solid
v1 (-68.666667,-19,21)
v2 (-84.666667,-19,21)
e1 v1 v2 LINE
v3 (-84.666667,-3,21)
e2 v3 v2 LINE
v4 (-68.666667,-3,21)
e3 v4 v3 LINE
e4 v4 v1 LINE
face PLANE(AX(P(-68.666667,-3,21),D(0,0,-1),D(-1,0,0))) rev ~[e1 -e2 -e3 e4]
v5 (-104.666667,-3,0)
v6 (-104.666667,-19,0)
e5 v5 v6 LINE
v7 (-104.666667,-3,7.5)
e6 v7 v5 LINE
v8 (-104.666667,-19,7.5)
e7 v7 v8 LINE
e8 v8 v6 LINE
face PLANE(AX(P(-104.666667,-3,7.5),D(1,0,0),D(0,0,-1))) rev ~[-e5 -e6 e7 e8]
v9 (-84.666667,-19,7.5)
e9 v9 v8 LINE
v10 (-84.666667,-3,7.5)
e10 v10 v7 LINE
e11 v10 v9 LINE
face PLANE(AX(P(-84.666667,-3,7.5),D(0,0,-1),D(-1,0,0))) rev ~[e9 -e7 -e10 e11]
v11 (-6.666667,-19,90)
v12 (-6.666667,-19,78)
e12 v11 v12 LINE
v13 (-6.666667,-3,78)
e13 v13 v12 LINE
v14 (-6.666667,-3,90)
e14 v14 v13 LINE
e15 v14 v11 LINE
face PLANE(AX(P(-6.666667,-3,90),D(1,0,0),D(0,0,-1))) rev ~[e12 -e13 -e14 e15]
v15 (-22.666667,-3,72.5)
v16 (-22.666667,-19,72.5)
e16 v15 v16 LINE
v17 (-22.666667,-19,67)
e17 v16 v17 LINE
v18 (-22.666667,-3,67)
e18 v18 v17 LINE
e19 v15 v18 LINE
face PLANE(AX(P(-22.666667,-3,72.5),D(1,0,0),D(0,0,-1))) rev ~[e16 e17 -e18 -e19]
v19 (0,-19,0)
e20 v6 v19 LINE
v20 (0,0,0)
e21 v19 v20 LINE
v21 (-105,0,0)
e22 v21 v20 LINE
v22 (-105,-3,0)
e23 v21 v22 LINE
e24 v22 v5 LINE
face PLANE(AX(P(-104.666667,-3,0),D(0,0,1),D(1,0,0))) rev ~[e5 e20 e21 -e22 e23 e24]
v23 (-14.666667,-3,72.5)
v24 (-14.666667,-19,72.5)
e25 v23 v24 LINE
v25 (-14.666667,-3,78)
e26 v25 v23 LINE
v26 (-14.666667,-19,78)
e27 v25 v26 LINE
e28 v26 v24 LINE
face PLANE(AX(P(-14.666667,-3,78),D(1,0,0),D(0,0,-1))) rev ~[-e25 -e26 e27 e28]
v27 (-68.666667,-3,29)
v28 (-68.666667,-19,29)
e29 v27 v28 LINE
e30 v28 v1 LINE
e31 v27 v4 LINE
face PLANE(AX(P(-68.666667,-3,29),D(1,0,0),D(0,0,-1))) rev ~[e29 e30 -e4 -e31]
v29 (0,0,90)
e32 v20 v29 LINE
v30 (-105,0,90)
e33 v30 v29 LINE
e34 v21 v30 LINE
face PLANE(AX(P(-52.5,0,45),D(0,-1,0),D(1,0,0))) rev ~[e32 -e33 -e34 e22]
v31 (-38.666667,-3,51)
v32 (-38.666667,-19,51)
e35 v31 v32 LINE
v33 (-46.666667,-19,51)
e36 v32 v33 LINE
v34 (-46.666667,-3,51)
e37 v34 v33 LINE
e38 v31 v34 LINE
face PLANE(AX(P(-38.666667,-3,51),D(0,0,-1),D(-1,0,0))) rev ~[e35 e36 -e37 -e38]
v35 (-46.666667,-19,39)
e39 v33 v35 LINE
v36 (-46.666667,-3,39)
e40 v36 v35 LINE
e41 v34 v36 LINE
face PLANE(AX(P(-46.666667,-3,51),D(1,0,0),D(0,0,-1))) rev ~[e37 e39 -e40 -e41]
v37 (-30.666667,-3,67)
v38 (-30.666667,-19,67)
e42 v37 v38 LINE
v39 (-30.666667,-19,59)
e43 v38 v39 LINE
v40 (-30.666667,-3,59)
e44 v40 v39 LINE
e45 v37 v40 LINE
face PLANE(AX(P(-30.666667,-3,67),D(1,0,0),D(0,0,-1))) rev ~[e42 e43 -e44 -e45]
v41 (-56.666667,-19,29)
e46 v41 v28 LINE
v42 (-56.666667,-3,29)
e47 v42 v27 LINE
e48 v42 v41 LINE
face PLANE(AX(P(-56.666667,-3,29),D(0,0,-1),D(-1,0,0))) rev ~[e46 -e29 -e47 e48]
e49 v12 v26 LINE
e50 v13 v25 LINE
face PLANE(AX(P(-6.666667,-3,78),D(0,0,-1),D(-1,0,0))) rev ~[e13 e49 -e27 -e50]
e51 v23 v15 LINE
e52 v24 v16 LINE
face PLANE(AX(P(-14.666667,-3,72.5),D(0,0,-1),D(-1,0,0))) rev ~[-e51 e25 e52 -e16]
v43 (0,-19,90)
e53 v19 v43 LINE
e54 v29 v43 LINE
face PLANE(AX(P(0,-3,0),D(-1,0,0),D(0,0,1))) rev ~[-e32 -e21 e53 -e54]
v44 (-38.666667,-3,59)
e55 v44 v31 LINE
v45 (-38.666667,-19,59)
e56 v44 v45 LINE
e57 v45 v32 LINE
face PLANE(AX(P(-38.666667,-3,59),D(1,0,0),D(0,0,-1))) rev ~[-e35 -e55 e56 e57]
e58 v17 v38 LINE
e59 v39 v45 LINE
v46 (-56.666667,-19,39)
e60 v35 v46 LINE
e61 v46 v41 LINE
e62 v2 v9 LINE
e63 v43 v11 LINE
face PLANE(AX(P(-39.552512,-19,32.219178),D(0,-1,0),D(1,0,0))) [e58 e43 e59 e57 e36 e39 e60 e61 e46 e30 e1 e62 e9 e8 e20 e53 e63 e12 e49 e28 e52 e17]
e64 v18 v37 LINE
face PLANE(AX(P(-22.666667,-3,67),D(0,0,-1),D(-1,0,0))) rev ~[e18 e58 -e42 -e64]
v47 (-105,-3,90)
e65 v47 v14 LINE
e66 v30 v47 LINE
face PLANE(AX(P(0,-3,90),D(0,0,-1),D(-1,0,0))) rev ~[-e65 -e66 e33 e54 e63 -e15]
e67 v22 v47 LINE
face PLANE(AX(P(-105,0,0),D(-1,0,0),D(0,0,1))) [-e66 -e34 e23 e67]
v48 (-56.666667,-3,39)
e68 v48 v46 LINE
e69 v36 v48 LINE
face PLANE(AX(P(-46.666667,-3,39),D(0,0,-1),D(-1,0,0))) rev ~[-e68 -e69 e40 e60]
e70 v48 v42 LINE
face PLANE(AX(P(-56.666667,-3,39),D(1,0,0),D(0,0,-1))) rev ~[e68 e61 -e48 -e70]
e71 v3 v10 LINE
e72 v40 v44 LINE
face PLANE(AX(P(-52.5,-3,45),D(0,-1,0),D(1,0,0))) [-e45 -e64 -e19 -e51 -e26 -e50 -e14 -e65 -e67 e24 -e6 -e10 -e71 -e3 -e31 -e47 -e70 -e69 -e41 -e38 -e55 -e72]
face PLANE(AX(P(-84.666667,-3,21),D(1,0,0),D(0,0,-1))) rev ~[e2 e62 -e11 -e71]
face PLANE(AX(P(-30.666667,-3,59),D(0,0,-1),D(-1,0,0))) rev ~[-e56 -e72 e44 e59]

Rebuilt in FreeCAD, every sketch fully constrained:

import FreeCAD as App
import Part
import Sketcher

V = App.Vector
Q = App.Units.Quantity

doc = App.newDocument("Part")
params = doc.addObject("Spreadsheet::Sheet", "Params")
for row, (alias, value) in enumerate([
    ("sketch1_width", "105 mm"),
    ("sketch1_height", "90 mm"),
    ("pad1_length", "3 mm"),
    ("sketch2_width", "8 mm"),
    ("sketch2_width2", "10 mm"),
    ("sketch2_width3", "12 mm"),
    ("sketch2_width4", "16 mm"),
    ("sketch2_width5", "20 mm"),
    ("pad2_length", "16 mm"),
], start=1):
    params.set(f"A{row}", alias)
    params.set(f"B{row}", "=" + value)
    params.setAlias(f"B{row}", alias)

body = doc.addObject("PartDesign::Body", "Body")

# Sketch on XZ plane
sketch1 = doc.addObject("Sketcher::SketchObject", "Sketch")
body.addObject(sketch1)
sketch1.AttachmentSupport = (doc.XZ_Plane, [""])
sketch1.MapMode = "FlatFace"
sketch1.addGeometry([
    Part.LineSegment(V(-105, 90, 0), V(-105, 0, 0)),
    Part.LineSegment(V(-105, 0, 0), V(0, 0, 0)),
    Part.LineSegment(V(0, 0, 0), V(0, 90, 0)),
    Part.LineSegment(V(0, 90, 0), V(-105, 90, 0)),
], False)
sketch1.addConstraint([
    Sketcher.Constraint("Coincident", 0, 2, 1, 1),
    Sketcher.Constraint("Coincident", 1, 2, 2, 1),
    Sketcher.Constraint("Coincident", 2, 2, 3, 1),
    Sketcher.Constraint("Coincident", 3, 2, 0, 1),
    Sketcher.Constraint("Vertical", 0),
    Sketcher.Constraint("Horizontal", 1),
    Sketcher.Constraint("Vertical", 2),
    Sketcher.Constraint("Horizontal", 3),
    Sketcher.Constraint("Coincident", 1, 2, -1, 1),
    Sketcher.Constraint("DistanceX", 1, 1, 1, 2, Q("105 mm")),
    Sketcher.Constraint("DistanceY", 0, 2, 0, 1, Q("90 mm")),
])
sketch1.setExpression("Constraints[9]", "Params.sketch1_width")
sketch1.setExpression("Constraints[10]", "Params.sketch1_height")
pad1 = doc.addObject("PartDesign::Pad", "Pad")
body.addObject(pad1)
pad1.Profile = sketch1
pad1.setExpression("Length", "Params.pad1_length")

# Sketch on XZ plane
sketch2 = doc.addObject("Sketcher::SketchObject", "Sketch001")
body.addObject(sketch2)
sketch2.AttachmentSupport = (doc.XZ_Plane, [""])
sketch2.MapMode = "FlatFace"
sketch2.AttachmentOffset = App.Placement(V(0, 0, 3), App.Rotation())
sketch2.addGeometry([
    Part.LineSegment(V(0, 0, 0), V(0, 90, 0)),  # 0
    Part.LineSegment(V(0, 90, 0), V(-7, 90, 0)),  # 1
    Part.LineSegment(V(-7, 90, 0), V(-7, 78, 0)),  # 2
    Part.LineSegment(V(-7, 78, 0), V(-15, 78, 0)),  # 3
    Part.LineSegment(V(-15, 78, 0), V(-15, 72, 0)),  # 4
    Part.LineSegment(V(-15, 72, 0), V(-23, 72, 0)),  # 5
    Part.LineSegment(V(-23, 72, 0), V(-23, 67, 0)),  # 6
    Part.LineSegment(V(-23, 67, 0), V(-31, 67, 0)),  # 7
    Part.LineSegment(V(-31, 67, 0), V(-31, 59, 0)),  # 8
    Part.LineSegment(V(-31, 59, 0), V(-39, 59, 0)),  # 9
    Part.LineSegment(V(-39, 59, 0), V(-39, 51, 0)),  # 10
    Part.LineSegment(V(-39, 51, 0), V(-47, 51, 0)),  # 11
    Part.LineSegment(V(-47, 51, 0), V(-47, 39, 0)),  # 12
    Part.LineSegment(V(-47, 39, 0), V(-57, 39, 0)),  # 13
    Part.LineSegment(V(-57, 39, 0), V(-57, 29, 0)),  # 14
    Part.LineSegment(V(-57, 29, 0), V(-69, 29, 0)),  # 15
    Part.LineSegment(V(-69, 29, 0), V(-69, 21, 0)),  # 16
    Part.LineSegment(V(-69, 21, 0), V(-85, 21, 0)),  # 17
    Part.LineSegment(V(-85, 21, 0), V(-85, 8, 0)),  # 18
    Part.LineSegment(V(-85, 8, 0), V(-105, 8, 0)),  # 19
    Part.LineSegment(V(-105, 8, 0), V(-105, 0, 0)),  # 20
    Part.LineSegment(V(-105, 0, 0), V(0, 0, 0)),  # 21
], False)
sketch2.addConstraint([
    Sketcher.Constraint("Coincident", 0, 2, 1, 1),
    Sketcher.Constraint("Coincident", 1, 2, 2, 1),
    Sketcher.Constraint("Coincident", 2, 2, 3, 1),
    Sketcher.Constraint("Coincident", 3, 2, 4, 1),
    Sketcher.Constraint("Coincident", 4, 2, 5, 1),
    Sketcher.Constraint("Coincident", 5, 2, 6, 1),
    Sketcher.Constraint("Coincident", 6, 2, 7, 1),
    Sketcher.Constraint("Coincident", 7, 2, 8, 1),
    Sketcher.Constraint("Coincident", 8, 2, 9, 1),
    Sketcher.Constraint("Coincident", 9, 2, 10, 1),
    Sketcher.Constraint("Coincident", 10, 2, 11, 1),
    Sketcher.Constraint("Coincident", 11, 2, 12, 1),
    Sketcher.Constraint("Coincident", 12, 2, 13, 1),
    Sketcher.Constraint("Coincident", 13, 2, 14, 1),
    Sketcher.Constraint("Coincident", 14, 2, 15, 1),
    Sketcher.Constraint("Coincident", 15, 2, 16, 1),
    Sketcher.Constraint("Coincident", 16, 2, 17, 1),
    Sketcher.Constraint("Coincident", 17, 2, 18, 1),
    Sketcher.Constraint("Coincident", 18, 2, 19, 1),
    Sketcher.Constraint("Coincident", 19, 2, 20, 1),
    Sketcher.Constraint("Coincident", 20, 2, 21, 1),
    Sketcher.Constraint("Coincident", 21, 2, 0, 1),
    Sketcher.Constraint("Vertical", 0),
    Sketcher.Constraint("Horizontal", 1),
    Sketcher.Constraint("Vertical", 2),
    Sketcher.Constraint("Horizontal", 3),
    Sketcher.Constraint("Vertical", 4),
    Sketcher.Constraint("Horizontal", 5),
    Sketcher.Constraint("Vertical", 6),
    Sketcher.Constraint("Horizontal", 7),
    Sketcher.Constraint("Vertical", 8),
    Sketcher.Constraint("Horizontal", 9),
    Sketcher.Constraint("Vertical", 10),
    Sketcher.Constraint("Horizontal", 11),
    Sketcher.Constraint("Vertical", 12),
    Sketcher.Constraint("Horizontal", 13),
    Sketcher.Constraint("Vertical", 14),
    Sketcher.Constraint("Horizontal", 15),
    Sketcher.Constraint("Vertical", 16),
    Sketcher.Constraint("Horizontal", 17),
    Sketcher.Constraint("Vertical", 18),
    Sketcher.Constraint("Horizontal", 19),
    Sketcher.Constraint("Vertical", 20),
    Sketcher.Constraint("Horizontal", 21),
    Sketcher.Constraint("Coincident", 21, 2, -1, 1),
    Sketcher.Constraint("Equal", 3, 5),
    Sketcher.Constraint("Equal", 5, 7),
    Sketcher.Constraint("Equal", 7, 9),
    Sketcher.Constraint("Equal", 9, 11),
    Sketcher.Constraint("Equal", 15, 2),
    Sketcher.Constraint("Equal", 4, 6),
    Sketcher.Constraint("Equal", 11, 8),
    Sketcher.Constraint("Equal", 8, 10),
    Sketcher.Constraint("Equal", 2, 12),
    Sketcher.Constraint("Equal", 13, 14),
    Sketcher.Constraint("Equal", 10, 16),
    Sketcher.Constraint("DistanceX", 3, 2, 3, 1, Q("8 mm")),
    Sketcher.Constraint("DistanceX", 13, 2, 13, 1, Q("10 mm")),
    Sketcher.Constraint("DistanceX", 15, 2, 15, 1, Q("12 mm")),
    Sketcher.Constraint("DistanceX", 17, 2, 17, 1, Q("16 mm")),
    Sketcher.Constraint("DistanceX", 19, 2, 19, 1, Q("20 mm")),
    Sketcher.Constraint("DistanceY", 0, 1, 0, 2, Q("90 mm")),
    Sketcher.Constraint("DistanceY", 4, 2, 4, 1, Q("5.5 mm")),
    Sketcher.Constraint("DistanceY", 18, 2, 18, 1, Q("13.5 mm")),
    Sketcher.Constraint("DistanceX", 1, 2, 1, 1, Q("6.666667 mm")),
])
sketch2.setExpression("Constraints[56]", "Params.sketch2_width")
sketch2.setExpression("Constraints[57]", "Params.sketch2_width2")
sketch2.setExpression("Constraints[58]", "Params.sketch2_width3")
sketch2.setExpression("Constraints[59]", "Params.sketch2_width4")
sketch2.setExpression("Constraints[60]", "Params.sketch2_width5")
pad2 = doc.addObject("PartDesign::Pad", "Pad001")
body.addObject(pad2)
pad2.Profile = sketch2
pad2.setExpression("Length", "Params.pad2_length")

doc.recompute()
